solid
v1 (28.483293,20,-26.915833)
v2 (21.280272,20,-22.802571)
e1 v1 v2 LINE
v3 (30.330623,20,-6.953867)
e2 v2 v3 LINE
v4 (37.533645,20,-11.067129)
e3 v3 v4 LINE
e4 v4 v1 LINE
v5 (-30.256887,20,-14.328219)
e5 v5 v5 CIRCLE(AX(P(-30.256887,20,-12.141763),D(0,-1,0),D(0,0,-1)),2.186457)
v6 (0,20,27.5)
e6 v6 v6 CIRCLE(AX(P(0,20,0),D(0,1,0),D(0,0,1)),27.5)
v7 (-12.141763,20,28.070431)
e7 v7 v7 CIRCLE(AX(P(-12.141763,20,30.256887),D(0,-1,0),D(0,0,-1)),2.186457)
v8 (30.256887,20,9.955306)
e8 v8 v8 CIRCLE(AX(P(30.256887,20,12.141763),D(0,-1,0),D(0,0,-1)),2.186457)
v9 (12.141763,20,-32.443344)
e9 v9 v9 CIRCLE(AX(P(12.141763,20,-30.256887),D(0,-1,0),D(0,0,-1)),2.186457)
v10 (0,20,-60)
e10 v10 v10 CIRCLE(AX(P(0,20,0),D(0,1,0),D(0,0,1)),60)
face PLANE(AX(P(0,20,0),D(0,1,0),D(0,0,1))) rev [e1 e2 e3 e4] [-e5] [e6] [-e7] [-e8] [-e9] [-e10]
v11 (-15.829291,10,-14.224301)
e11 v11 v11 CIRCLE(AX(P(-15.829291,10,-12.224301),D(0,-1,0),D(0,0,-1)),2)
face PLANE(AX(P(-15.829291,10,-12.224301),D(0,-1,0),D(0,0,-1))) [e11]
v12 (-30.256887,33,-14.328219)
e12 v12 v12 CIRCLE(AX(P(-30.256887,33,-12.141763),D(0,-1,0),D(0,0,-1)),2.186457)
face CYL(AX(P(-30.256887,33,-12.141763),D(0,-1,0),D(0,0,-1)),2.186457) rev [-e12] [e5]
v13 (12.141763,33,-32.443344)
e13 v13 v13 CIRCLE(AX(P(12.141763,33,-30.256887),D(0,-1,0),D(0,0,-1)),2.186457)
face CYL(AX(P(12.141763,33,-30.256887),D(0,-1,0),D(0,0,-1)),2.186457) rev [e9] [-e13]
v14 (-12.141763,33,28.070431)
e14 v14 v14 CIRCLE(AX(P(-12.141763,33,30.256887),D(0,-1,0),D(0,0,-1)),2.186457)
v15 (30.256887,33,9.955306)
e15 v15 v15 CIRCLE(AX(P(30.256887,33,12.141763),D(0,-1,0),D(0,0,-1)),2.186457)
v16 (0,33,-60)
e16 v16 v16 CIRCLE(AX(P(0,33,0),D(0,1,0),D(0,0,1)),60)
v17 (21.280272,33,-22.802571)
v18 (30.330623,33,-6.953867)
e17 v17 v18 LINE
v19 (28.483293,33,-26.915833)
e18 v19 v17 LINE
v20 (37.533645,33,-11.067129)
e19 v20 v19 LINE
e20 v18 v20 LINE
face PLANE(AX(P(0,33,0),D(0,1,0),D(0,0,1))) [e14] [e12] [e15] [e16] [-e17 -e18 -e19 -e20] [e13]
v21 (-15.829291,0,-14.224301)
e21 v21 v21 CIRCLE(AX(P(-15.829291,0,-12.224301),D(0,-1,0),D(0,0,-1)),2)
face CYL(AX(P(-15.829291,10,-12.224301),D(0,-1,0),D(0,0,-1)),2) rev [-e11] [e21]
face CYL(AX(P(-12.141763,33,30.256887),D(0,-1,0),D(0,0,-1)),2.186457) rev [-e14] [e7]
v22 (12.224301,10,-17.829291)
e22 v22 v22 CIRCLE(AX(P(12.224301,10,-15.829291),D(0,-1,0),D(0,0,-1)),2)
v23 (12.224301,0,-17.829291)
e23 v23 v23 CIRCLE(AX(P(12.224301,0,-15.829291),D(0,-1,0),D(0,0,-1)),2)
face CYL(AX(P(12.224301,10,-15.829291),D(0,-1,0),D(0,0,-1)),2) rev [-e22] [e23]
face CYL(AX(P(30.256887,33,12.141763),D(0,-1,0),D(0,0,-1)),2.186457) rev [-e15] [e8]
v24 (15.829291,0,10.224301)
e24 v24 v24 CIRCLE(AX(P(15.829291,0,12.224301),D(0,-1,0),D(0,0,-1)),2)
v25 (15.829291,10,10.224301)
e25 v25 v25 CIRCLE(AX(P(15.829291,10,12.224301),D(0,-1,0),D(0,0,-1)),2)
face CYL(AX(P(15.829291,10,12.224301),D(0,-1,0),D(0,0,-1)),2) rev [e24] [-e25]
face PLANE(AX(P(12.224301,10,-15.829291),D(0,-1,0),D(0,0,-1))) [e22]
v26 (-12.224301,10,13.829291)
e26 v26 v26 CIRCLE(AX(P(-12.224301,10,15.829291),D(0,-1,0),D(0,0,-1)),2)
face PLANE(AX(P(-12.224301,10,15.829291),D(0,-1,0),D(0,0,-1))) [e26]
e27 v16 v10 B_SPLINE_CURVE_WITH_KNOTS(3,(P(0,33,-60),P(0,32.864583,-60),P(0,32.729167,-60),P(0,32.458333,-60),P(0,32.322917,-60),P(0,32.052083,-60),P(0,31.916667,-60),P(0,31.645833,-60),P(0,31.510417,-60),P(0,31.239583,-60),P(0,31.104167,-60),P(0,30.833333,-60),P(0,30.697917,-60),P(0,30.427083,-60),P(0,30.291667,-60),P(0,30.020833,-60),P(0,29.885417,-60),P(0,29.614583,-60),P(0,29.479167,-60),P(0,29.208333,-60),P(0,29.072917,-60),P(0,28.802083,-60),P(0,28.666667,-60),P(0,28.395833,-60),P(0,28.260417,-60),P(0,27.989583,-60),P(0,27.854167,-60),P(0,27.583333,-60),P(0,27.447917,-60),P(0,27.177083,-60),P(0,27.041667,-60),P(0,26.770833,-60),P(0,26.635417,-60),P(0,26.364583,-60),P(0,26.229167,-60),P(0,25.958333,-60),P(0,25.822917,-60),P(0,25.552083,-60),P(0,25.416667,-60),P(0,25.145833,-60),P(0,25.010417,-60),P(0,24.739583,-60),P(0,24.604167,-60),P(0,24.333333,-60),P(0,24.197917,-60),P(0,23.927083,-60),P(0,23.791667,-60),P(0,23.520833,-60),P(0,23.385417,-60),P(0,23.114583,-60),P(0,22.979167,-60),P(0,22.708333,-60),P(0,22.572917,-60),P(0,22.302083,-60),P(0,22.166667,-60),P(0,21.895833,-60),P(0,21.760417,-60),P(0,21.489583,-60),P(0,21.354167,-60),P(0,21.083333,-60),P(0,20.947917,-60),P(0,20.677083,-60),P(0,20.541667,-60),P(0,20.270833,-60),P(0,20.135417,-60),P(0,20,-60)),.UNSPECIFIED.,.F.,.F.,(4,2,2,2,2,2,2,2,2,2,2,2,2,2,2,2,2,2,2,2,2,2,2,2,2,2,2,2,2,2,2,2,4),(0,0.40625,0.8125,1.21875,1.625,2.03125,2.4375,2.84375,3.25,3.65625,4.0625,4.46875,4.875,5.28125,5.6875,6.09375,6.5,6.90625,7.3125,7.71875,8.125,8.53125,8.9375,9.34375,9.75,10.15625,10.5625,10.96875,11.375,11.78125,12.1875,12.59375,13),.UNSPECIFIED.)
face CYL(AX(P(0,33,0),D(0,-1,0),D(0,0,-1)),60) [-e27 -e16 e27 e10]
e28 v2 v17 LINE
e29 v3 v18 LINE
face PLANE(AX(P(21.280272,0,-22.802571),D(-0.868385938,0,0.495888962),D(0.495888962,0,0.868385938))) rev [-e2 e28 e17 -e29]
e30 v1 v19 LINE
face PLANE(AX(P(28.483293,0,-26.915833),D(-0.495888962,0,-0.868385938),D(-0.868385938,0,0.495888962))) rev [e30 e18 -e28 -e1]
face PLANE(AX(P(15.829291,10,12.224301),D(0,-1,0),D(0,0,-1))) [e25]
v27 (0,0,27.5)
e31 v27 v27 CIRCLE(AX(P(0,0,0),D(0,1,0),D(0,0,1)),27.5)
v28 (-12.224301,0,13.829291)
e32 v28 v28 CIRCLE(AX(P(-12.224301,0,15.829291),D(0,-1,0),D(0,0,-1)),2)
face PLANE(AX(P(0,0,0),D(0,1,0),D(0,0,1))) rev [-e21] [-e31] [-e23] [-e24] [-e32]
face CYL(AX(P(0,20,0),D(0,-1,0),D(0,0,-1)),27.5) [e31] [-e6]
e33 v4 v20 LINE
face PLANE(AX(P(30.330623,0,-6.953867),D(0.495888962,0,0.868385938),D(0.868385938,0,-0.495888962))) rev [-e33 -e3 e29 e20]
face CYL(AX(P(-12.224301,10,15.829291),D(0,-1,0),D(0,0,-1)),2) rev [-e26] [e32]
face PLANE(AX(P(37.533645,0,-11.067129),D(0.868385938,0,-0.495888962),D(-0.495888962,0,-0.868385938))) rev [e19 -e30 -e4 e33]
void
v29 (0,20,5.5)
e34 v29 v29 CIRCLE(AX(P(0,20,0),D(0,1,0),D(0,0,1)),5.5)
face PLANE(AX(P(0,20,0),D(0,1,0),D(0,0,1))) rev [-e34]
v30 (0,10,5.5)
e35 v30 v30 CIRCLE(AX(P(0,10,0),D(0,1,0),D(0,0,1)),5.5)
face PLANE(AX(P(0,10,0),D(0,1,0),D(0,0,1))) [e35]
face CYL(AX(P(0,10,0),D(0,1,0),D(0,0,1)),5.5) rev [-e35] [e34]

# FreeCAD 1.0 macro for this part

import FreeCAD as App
import Part
import Sketcher

V = App.Vector
Q = App.Units.Quantity

doc = App.newDocument("Part")
body = doc.addObject("PartDesign::Body", "Body")

sketch1 = body.newObject("Sketcher::SketchObject", "Sketch")
sketch1.AttachmentSupport = (doc.getObject("XZ_Plane"), [""])
sketch1.MapMode = "FlatFace"
sketch1.addGeometry(Part.Circle(V(0, 0, 0), V(0, 0, 1), 27.5), False)
sketch1.addConstraint([
    Sketcher.Constraint("Coincident", 0, 3, -1, 1),
    Sketcher.Constraint("Diameter", 0, Q("55 mm")),
])
pad1 = body.newObject("PartDesign::Pad", "Pad")
pad1.Profile = sketch1
pad1.Length = 20
pad1.Reversed = True

sketch2 = body.newObject("Sketcher::SketchObject", "Sketch001")
sketch2.AttachmentSupport = (doc.getObject("XZ_Plane"), [""])
sketch2.MapMode = "FlatFace"
sketch2.AttachmentOffset = App.Placement(V(0, 0, -20), App.Rotation())
sketch2.addGeometry(Part.Circle(V(0, 0, 0), V(0, 0, 1), 5.5), False)
sketch2.addConstraint([
    Sketcher.Constraint("Coincident", 0, 3, -1, 1),
    Sketcher.Constraint("Diameter", 0, Q("11 mm")),
])
pocket1 = body.newObject("PartDesign::Pocket", "Pocket")
pocket1.Profile = sketch2
pocket1.Length = 10
pocket1.Reversed = True

sketch3 = body.newObject("Sketcher::SketchObject", "Sketch002")
sketch3.AttachmentSupport = (doc.getObject("XZ_Plane"), [""])
sketch3.MapMode = "FlatFace"
sketch3.addGeometry([
    Part.Circle(V(12.224301, -15.829291, 0), V(0, 0, 1), 2),
    Part.Circle(V(-15.829291, -12.224301, 0), V(0, 0, 1), 2),
    Part.Circle(V(-12.224301, 15.829291, 0), V(0, 0, 1), 2),
    Part.Circle(V(15.829291, 12.224301, 0), V(0, 0, 1), 2),
], False)
sketch3.addConstraint([
    Sketcher.Constraint("Equal", 0, 1),
    Sketcher.Constraint("Equal", 1, 2),
    Sketcher.Constraint("Equal", 2, 3),
    Sketcher.Constraint("Symmetric", 0, 3, 2, 3, -1, 1),
    Sketcher.Constraint("Symmetric", 1, 3, 3, 3, -1, 1),
    Sketcher.Constraint("Diameter", 0, Q("4 mm")),
    Sketcher.Constraint("DistanceX", -1, 1, 0, 3, Q("12.224301 mm")),
    Sketcher.Constraint("DistanceY", 1, 3, -1, 1, Q("12.224301 mm")),
    Sketcher.Constraint("DistanceY", 0, 3, -1, 1, Q("15.829291 mm")),
    Sketcher.Constraint("DistanceX", 1, 3, -1, 1, Q("15.829291 mm")),
])
pocket2 = body.newObject("PartDesign::Pocket", "Pocket001")
pocket2.Profile = sketch3
pocket2.Length = 10

sketch4 = body.newObject("Sketcher::SketchObject", "Sketch003")
sketch4.AttachmentSupport = (doc.getObject("XZ_Plane"), [""])
sketch4.MapMode = "FlatFace"
sketch4.AttachmentOffset = App.Placement(V(0, 0, -20), App.Rotation())
sketch4.addGeometry(Part.Circle(V(0, 0, 0), V(0, 0, 1), 60), False)
sketch4.addConstraint([
    Sketcher.Constraint("Coincident", 0, 3, -1, 1),
    Sketcher.Constraint("Diameter", 0, Q("120 mm")),
])
pad2 = body.newObject("PartDesign::Pad", "Pad001")
pad2.Profile = sketch4
pad2.Length = 13
pad2.Reversed = True

sketch5 = body.newObject("Sketcher::SketchObject", "Sketch004")
sketch5.AttachmentSupport = (doc.getObject("XZ_Plane"), [""])
sketch5.MapMode = "FlatFace"
sketch5.AttachmentOffset = App.Placement(V(0, 0, -33), App.Rotation())
sketch5.addGeometry([
    Part.LineSegment(V(28.483293, -26.915833, 0), V(21.280272, -22.802571, 0)),
    Part.LineSegment(V(21.280272, -22.802571, 0), V(30.330623, -6.953867, 0)),
    Part.LineSegment(V(30.330623, -6.953867, 0), V(37.533645, -11.067129, 0)),
    Part.LineSegment(V(37.533645, -11.067129, 0), V(28.483293, -26.915833, 0)),
], False)
sketch5.addConstraint([
    Sketcher.Constraint("Coincident", 0, 2, 1, 1),
    Sketcher.Constraint("Coincident", 1, 2, 2, 1),
    Sketcher.Constraint("Coincident", 2, 2, 3, 1),
    Sketcher.Constraint("Coincident", 3, 2, 0, 1),
    Sketcher.Constraint("Perpendicular", 0, 1),
    Sketcher.Constraint("Perpendicular", 1, 2),
    Sketcher.Constraint("Perpendicular", 2, 3),
    Sketcher.Constraint("Distance", 1, Q("18.250762 mm")),
    Sketcher.Constraint("DistanceY", 0, 2, -1, 1, Q("22.802571 mm")),
    Sketcher.Constraint("DistanceY", 2, 2, -1, 1, Q("11.067129 mm")),
    Sketcher.Constraint("DistanceX", 0, 2, 1, 2, Q("9.050351 mm")),
    Sketcher.Constraint("DistanceX", -1, 1, 0, 2, Q("21.280272 mm")),
])
pocket3 = body.newObject("PartDesign::Pocket", "Pocket002")
pocket3.Profile = sketch5
pocket3.Type = "ThroughAll"
pocket3.Reversed = True

sketch6 = body.newObject("Sketcher::SketchObject", "Sketch005")
sketch6.AttachmentSupport = (doc.getObject("XZ_Plane"), [""])
sketch6.MapMode = "FlatFace"
sketch6.AttachmentOffset = App.Placement(V(0, 0, -20), App.Rotation())
sketch6.addGeometry([
    Part.Circle(V(-30.256887, -12.141763, 0), V(0, 0, 1), 2.186457),
    Part.Circle(V(-12.141763, 30.256887, 0), V(0, 0, 1), 2.186457),
    Part.Circle(V(30.256887, 12.141763, 0), V(0, 0, 1), 2.186457),
    Part.Circle(V(12.141763, -30.256887, 0), V(0, 0, 1), 2.186457),
], False)
sketch6.addConstraint([
    Sketcher.Constraint("Equal", 0, 1),
    Sketcher.Constraint("Equal", 1, 2),
    Sketcher.Constraint("Equal", 2, 3),
    Sketcher.Constraint("Symmetric", 0, 3, 2, 3, -1, 1),
    Sketcher.Constraint("Symmetric", 1, 3, 3, 3, -1, 1),
    Sketcher.Constraint("Diameter", 0, Q("4.372913 mm")),
    Sketcher.Constraint("DistanceY", 0, 3, 1, 3, Q("42.39865 mm")),
    Sketcher.Constraint("DistanceX", 1, 3, 2, 3, Q("42.39865 mm")),
    Sketcher.Constraint("DistanceX", 0, 3, -1, 1, Q("30.256887 mm")),
    Sketcher.Constraint("DistanceY", 0, 3, -1, 1, Q("12.141763 mm")),
])
pocket4 = body.newObject("PartDesign::Pocket", "Pocket003")
pocket4.Profile = sketch6
pocket4.Type = "ThroughAll"

doc.recompute()
